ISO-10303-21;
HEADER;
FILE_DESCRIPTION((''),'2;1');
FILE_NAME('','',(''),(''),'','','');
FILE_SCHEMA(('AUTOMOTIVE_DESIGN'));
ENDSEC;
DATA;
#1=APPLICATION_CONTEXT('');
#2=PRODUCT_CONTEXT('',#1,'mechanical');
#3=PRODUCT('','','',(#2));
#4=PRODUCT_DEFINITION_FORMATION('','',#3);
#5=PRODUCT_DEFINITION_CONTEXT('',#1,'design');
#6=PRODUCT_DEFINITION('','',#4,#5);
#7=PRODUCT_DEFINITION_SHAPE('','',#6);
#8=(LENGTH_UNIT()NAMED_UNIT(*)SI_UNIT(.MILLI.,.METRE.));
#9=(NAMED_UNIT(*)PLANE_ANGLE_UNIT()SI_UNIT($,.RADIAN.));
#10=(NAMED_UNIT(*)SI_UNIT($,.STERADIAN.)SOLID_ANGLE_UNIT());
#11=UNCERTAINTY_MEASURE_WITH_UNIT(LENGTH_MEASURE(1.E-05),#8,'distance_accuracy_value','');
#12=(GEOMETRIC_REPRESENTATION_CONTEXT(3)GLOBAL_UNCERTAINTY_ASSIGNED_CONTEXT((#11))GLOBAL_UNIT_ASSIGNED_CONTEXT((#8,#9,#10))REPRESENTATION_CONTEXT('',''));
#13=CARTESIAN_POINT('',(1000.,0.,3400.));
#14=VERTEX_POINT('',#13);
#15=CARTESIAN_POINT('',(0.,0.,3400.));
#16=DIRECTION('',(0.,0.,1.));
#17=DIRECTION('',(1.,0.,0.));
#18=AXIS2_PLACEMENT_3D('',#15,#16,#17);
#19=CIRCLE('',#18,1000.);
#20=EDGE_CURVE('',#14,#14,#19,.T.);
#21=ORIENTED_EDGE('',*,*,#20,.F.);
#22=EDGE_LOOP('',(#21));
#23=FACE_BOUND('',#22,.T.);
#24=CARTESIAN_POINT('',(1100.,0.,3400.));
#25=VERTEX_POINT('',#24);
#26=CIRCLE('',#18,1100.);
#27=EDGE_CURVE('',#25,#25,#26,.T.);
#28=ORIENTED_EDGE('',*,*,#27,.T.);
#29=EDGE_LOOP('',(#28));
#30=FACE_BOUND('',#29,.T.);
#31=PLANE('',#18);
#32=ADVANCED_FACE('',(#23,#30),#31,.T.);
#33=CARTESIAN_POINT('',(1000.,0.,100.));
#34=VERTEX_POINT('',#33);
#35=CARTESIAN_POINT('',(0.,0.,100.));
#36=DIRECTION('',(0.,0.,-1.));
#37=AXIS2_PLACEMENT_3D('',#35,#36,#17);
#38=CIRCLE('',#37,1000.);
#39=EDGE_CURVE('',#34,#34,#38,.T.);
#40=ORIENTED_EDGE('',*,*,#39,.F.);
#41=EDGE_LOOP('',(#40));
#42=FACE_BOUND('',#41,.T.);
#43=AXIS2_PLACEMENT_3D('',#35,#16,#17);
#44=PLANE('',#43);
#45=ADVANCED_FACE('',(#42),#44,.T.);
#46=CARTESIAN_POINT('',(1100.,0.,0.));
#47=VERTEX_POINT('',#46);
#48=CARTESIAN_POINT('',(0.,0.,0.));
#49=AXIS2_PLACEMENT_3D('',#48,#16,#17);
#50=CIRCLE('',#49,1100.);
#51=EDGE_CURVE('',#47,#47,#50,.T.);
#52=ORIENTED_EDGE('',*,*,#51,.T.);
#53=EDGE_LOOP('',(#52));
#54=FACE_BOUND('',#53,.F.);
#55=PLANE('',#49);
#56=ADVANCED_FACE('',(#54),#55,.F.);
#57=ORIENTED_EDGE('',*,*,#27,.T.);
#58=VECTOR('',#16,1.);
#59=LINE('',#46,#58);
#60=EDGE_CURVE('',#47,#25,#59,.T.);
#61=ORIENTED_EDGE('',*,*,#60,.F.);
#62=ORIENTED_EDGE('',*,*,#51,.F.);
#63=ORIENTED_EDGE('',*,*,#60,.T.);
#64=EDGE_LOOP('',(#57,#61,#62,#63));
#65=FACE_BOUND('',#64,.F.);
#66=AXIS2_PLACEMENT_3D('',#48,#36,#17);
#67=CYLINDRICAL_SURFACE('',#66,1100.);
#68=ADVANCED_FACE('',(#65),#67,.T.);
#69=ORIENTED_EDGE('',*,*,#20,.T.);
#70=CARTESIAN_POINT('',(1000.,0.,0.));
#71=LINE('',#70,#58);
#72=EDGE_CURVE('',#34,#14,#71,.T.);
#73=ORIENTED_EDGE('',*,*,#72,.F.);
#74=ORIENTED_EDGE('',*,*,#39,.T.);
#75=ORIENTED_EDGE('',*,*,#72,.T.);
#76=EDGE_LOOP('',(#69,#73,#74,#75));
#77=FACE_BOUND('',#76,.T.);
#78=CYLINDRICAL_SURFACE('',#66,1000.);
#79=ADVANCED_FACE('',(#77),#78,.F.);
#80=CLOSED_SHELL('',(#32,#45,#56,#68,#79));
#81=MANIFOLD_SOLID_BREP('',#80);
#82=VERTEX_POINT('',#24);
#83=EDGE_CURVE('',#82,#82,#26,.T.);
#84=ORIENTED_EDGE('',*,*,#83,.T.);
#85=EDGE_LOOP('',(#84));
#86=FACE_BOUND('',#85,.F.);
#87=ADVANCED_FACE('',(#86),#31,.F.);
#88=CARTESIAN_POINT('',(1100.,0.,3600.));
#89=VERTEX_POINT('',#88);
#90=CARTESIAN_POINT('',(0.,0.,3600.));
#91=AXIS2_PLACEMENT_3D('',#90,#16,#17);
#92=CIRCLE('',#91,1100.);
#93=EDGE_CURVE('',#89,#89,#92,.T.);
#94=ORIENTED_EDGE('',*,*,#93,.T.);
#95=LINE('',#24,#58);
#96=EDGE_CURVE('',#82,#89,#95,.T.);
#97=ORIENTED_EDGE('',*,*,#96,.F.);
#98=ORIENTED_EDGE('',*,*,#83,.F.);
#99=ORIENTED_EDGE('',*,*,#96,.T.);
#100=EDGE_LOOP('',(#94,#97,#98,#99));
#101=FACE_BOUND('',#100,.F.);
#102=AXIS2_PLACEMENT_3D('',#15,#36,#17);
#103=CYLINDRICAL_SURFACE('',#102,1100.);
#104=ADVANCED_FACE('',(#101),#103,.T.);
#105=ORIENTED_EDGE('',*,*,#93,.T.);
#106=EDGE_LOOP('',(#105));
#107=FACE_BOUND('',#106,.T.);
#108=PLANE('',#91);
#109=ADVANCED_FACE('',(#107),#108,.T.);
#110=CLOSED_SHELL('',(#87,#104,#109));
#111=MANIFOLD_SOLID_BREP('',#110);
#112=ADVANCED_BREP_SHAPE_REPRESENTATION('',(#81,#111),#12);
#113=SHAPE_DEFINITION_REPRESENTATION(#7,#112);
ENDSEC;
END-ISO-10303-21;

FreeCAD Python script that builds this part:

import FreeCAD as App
import Part
import Sketcher

V = App.Vector
Q = App.Units.Quantity


def faces_at(feature, points):
    """Names of the faces that lie closest to the given points."""
    faces = feature.Shape.Faces
    near = lambda p: min(range(len(faces)), key=lambda i: faces[i].distToShape(Part.Vertex(*p))[0])
    return sorted({f"Face{near(p) + 1}" for p in points})

doc = App.newDocument("Part")
body = doc.addObject("PartDesign::Body", "Body")

sketch1 = doc.addObject("Sketcher::SketchObject", "Sketch")
body.addObject(sketch1)
sketch1.AttachmentSupport = (doc.XY_Plane, [""])
sketch1.MapMode = "FlatFace"
sketch1.addGeometry(Part.Circle(V(0, 0, 0), V(0, 0, 1), 1100), False)
sketch1.addConstraint(Sketcher.Constraint("Coincident", 0, 3, -1, 1))
sketch1.addConstraint(Sketcher.Constraint("Diameter", 0, Q("2200 mm")))
pad1 = doc.addObject("PartDesign::Pad", "Pad")
body.addObject(pad1)
pad1.Profile = sketch1
pad1.Length = 3400
doc.recompute()

thickness = doc.addObject("PartDesign::Thickness", "Thickness")
body.addObject(thickness)
thickness.Base = (pad1, faces_at(pad1, [(0, 0, 3400)]))
thickness.Value = 100
thickness.Reversed = True
thickness.Join = "Arc"
body2 = doc.addObject("PartDesign::Body", "Body001")

sketch2 = doc.addObject("Sketcher::SketchObject", "Sketch001")
body2.addObject(sketch2)
sketch2.AttachmentSupport = (doc.getObject("XY_Plane001"), [""])
sketch2.MapMode = "FlatFace"
sketch2.AttachmentOffset = App.Placement(V(0, 0, 3400), App.Rotation())
sketch2.addGeometry(Part.Circle(V(0, 0, 0), V(0, 0, 1), 1100), False)
sketch2.addConstraint(Sketcher.Constraint("Coincident", 0, 3, -1, 1))
sketch2.addConstraint(Sketcher.Constraint("Diameter", 0, Q("2200 mm")))
pad2 = doc.addObject("PartDesign::Pad", "Pad001")
body2.addObject(pad2)
pad2.Profile = sketch2
pad2.Length = 200

doc.recompute()
